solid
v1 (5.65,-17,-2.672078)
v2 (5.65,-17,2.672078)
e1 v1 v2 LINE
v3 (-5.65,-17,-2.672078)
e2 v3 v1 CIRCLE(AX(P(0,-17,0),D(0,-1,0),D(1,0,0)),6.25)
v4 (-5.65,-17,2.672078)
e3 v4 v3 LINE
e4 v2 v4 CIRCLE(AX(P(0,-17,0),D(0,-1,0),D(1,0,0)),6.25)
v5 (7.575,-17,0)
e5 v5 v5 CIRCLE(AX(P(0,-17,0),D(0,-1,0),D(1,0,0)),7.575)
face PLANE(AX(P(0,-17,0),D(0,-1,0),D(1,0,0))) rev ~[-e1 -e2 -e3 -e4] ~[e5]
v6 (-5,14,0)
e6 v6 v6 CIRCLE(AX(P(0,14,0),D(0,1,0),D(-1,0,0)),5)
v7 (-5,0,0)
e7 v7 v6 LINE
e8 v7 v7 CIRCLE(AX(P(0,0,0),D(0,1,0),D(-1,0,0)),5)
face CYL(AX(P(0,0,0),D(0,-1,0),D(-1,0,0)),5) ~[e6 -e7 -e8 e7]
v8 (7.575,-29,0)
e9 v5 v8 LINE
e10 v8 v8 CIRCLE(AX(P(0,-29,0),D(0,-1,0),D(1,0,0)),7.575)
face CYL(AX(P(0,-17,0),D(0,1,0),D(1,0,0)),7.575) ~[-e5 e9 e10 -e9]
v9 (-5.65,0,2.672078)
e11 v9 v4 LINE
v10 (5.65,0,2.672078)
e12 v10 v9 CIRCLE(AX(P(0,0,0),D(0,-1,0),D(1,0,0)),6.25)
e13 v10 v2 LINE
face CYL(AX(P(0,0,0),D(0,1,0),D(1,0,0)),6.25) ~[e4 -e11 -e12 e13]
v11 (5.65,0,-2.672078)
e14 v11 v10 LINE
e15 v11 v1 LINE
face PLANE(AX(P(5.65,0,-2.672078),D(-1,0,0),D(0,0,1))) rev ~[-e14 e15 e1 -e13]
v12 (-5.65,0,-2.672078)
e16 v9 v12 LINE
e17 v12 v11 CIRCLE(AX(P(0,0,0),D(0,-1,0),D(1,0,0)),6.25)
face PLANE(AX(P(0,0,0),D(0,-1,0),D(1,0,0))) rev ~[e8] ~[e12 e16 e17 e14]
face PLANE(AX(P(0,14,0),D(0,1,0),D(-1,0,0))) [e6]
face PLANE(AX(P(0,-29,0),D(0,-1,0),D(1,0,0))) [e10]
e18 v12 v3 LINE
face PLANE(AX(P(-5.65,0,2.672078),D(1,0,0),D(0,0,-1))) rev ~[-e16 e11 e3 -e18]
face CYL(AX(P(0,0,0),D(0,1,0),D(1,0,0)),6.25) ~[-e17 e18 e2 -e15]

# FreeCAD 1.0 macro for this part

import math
import FreeCAD as App
import Part
import Sketcher

doc = App.newDocument("Part")
body = doc.addObject("PartDesign::Body", "Body")

# Sketch on XZ plane
sketch1 = body.newObject("Sketcher::SketchObject", "Sketch")
sketch1.AttachmentSupport = (doc.getObject("XZ_Plane"), [""])
sketch1.MapMode = "FlatFace"
sketch1.addGeometry(Part.Circle(App.Vector(0, 0, 0), App.Vector(0, 0, 1), 6), False)
sketch1.addConstraint([
    Sketcher.Constraint("Coincident", 0, 3, -1, 1),
    Sketcher.Constraint("Diameter", 0, 12.5),
])
pad1 = body.newObject("PartDesign::Pad", "Pad")
pad1.Profile = sketch1
pad1.Length = 17

# Sketch on XZ plane
sketch2 = body.newObject("Sketcher::SketchObject", "Sketch001")
sketch2.AttachmentSupport = (doc.getObject("XZ_Plane"), [""])
sketch2.MapMode = "FlatFace"
sketch2.AttachmentOffset = App.Placement(App.Vector(0, 0, 17), App.Rotation())
sketch2.addGeometry(Part.Circle(App.Vector(0, 0, 0), App.Vector(0, 0, 1), 8), False)
sketch2.addConstraint([
    Sketcher.Constraint("Coincident", 0, 3, -1, 1),
    Sketcher.Constraint("Diameter", 0, 15.15),
])
pad2 = body.newObject("PartDesign::Pad", "Pad001")
pad2.Profile = sketch2
pad2.Length = 12

# Sketch on XZ plane
sketch3 = body.newObject("Sketcher::SketchObject", "Sketch002")
sketch3.AttachmentSupport = (doc.getObject("XZ_Plane"), [""])
sketch3.MapMode = "FlatFace"
sketch3.addGeometry([
    Part.LineSegment(App.Vector(5.7, -2.7, 0), App.Vector(5.7, 2.7, 0)),  # 0
    Part.ArcOfCircle(Part.Circle(App.Vector(0, 0, 0), App.Vector(0, 0, 1), 6.2), math.radians(-25), math.radians(25)),  # 1
    Part.ArcOfCircle(Part.Circle(App.Vector(0, 0, 0), App.Vector(0, 0, 1), 6.3), math.radians(155), math.radians(180)),  # 2
    Part.LineSegment(App.Vector(-5.7, 2.7, 0), App.Vector(-5.7, -2.7, 0)),  # 3
    Part.ArcOfCircle(Part.Circle(App.Vector(0, 0, 0), App.Vector(0, 0, 1), 6.3), math.radians(180), math.radians(205)),  # 4
], False)
sketch3.addConstraint([
    Sketcher.Constraint("Coincident", 0, 1, 1, 1),
    Sketcher.Constraint("Coincident", 1, 2, 0, 2),
    Sketcher.Constraint("Coincident", 2, 1, 3, 1),
    Sketcher.Constraint("Coincident", 3, 2, 4, 2),
    Sketcher.Constraint("Tangent", 4, 1, 2, 2),
    Sketcher.Constraint("Vertical", 0),
    Sketcher.Constraint("Vertical", 3),
    Sketcher.Constraint("Coincident", 1, 3, -1, 1),
    Sketcher.Constraint("Coincident", 2, 3, -1, 1),
    Sketcher.Constraint("Equal", 1, 2),
    Sketcher.Constraint("Equal", 2, 4),
    Sketcher.Constraint("PointOnObject", 4, 1, -1),
    Sketcher.Constraint("Horizontal", 1, 2, 2, 1),
    Sketcher.Constraint("Radius", 1, 6.25),
    Sketcher.Constraint("DistanceX", 2, 1, 1, 2, 11.3),
])
pocket1 = body.newObject("PartDesign::Pocket", "Pocket")
pocket1.Profile = sketch3
pocket1.Length = 17
pocket1.Reversed = True

# Sketch on XZ plane
sketch4 = body.newObject("Sketcher::SketchObject", "Sketch003")
sketch4.AttachmentSupport = (doc.getObject("XZ_Plane"), [""])
sketch4.MapMode = "FlatFace"
sketch4.addGeometry(Part.Circle(App.Vector(0, 0, 0), App.Vector(0, 0, 1), 5), False)
sketch4.addConstraint([
    Sketcher.Constraint("Coincident", 0, 3, -1, 1),
    Sketcher.Constraint("Diameter", 0, 10.0),
])
pad3 = body.newObject("PartDesign::Pad", "Pad002")
pad3.Profile = sketch4
pad3.Length = 14
pad3.Reversed = True

doc.recompute()
